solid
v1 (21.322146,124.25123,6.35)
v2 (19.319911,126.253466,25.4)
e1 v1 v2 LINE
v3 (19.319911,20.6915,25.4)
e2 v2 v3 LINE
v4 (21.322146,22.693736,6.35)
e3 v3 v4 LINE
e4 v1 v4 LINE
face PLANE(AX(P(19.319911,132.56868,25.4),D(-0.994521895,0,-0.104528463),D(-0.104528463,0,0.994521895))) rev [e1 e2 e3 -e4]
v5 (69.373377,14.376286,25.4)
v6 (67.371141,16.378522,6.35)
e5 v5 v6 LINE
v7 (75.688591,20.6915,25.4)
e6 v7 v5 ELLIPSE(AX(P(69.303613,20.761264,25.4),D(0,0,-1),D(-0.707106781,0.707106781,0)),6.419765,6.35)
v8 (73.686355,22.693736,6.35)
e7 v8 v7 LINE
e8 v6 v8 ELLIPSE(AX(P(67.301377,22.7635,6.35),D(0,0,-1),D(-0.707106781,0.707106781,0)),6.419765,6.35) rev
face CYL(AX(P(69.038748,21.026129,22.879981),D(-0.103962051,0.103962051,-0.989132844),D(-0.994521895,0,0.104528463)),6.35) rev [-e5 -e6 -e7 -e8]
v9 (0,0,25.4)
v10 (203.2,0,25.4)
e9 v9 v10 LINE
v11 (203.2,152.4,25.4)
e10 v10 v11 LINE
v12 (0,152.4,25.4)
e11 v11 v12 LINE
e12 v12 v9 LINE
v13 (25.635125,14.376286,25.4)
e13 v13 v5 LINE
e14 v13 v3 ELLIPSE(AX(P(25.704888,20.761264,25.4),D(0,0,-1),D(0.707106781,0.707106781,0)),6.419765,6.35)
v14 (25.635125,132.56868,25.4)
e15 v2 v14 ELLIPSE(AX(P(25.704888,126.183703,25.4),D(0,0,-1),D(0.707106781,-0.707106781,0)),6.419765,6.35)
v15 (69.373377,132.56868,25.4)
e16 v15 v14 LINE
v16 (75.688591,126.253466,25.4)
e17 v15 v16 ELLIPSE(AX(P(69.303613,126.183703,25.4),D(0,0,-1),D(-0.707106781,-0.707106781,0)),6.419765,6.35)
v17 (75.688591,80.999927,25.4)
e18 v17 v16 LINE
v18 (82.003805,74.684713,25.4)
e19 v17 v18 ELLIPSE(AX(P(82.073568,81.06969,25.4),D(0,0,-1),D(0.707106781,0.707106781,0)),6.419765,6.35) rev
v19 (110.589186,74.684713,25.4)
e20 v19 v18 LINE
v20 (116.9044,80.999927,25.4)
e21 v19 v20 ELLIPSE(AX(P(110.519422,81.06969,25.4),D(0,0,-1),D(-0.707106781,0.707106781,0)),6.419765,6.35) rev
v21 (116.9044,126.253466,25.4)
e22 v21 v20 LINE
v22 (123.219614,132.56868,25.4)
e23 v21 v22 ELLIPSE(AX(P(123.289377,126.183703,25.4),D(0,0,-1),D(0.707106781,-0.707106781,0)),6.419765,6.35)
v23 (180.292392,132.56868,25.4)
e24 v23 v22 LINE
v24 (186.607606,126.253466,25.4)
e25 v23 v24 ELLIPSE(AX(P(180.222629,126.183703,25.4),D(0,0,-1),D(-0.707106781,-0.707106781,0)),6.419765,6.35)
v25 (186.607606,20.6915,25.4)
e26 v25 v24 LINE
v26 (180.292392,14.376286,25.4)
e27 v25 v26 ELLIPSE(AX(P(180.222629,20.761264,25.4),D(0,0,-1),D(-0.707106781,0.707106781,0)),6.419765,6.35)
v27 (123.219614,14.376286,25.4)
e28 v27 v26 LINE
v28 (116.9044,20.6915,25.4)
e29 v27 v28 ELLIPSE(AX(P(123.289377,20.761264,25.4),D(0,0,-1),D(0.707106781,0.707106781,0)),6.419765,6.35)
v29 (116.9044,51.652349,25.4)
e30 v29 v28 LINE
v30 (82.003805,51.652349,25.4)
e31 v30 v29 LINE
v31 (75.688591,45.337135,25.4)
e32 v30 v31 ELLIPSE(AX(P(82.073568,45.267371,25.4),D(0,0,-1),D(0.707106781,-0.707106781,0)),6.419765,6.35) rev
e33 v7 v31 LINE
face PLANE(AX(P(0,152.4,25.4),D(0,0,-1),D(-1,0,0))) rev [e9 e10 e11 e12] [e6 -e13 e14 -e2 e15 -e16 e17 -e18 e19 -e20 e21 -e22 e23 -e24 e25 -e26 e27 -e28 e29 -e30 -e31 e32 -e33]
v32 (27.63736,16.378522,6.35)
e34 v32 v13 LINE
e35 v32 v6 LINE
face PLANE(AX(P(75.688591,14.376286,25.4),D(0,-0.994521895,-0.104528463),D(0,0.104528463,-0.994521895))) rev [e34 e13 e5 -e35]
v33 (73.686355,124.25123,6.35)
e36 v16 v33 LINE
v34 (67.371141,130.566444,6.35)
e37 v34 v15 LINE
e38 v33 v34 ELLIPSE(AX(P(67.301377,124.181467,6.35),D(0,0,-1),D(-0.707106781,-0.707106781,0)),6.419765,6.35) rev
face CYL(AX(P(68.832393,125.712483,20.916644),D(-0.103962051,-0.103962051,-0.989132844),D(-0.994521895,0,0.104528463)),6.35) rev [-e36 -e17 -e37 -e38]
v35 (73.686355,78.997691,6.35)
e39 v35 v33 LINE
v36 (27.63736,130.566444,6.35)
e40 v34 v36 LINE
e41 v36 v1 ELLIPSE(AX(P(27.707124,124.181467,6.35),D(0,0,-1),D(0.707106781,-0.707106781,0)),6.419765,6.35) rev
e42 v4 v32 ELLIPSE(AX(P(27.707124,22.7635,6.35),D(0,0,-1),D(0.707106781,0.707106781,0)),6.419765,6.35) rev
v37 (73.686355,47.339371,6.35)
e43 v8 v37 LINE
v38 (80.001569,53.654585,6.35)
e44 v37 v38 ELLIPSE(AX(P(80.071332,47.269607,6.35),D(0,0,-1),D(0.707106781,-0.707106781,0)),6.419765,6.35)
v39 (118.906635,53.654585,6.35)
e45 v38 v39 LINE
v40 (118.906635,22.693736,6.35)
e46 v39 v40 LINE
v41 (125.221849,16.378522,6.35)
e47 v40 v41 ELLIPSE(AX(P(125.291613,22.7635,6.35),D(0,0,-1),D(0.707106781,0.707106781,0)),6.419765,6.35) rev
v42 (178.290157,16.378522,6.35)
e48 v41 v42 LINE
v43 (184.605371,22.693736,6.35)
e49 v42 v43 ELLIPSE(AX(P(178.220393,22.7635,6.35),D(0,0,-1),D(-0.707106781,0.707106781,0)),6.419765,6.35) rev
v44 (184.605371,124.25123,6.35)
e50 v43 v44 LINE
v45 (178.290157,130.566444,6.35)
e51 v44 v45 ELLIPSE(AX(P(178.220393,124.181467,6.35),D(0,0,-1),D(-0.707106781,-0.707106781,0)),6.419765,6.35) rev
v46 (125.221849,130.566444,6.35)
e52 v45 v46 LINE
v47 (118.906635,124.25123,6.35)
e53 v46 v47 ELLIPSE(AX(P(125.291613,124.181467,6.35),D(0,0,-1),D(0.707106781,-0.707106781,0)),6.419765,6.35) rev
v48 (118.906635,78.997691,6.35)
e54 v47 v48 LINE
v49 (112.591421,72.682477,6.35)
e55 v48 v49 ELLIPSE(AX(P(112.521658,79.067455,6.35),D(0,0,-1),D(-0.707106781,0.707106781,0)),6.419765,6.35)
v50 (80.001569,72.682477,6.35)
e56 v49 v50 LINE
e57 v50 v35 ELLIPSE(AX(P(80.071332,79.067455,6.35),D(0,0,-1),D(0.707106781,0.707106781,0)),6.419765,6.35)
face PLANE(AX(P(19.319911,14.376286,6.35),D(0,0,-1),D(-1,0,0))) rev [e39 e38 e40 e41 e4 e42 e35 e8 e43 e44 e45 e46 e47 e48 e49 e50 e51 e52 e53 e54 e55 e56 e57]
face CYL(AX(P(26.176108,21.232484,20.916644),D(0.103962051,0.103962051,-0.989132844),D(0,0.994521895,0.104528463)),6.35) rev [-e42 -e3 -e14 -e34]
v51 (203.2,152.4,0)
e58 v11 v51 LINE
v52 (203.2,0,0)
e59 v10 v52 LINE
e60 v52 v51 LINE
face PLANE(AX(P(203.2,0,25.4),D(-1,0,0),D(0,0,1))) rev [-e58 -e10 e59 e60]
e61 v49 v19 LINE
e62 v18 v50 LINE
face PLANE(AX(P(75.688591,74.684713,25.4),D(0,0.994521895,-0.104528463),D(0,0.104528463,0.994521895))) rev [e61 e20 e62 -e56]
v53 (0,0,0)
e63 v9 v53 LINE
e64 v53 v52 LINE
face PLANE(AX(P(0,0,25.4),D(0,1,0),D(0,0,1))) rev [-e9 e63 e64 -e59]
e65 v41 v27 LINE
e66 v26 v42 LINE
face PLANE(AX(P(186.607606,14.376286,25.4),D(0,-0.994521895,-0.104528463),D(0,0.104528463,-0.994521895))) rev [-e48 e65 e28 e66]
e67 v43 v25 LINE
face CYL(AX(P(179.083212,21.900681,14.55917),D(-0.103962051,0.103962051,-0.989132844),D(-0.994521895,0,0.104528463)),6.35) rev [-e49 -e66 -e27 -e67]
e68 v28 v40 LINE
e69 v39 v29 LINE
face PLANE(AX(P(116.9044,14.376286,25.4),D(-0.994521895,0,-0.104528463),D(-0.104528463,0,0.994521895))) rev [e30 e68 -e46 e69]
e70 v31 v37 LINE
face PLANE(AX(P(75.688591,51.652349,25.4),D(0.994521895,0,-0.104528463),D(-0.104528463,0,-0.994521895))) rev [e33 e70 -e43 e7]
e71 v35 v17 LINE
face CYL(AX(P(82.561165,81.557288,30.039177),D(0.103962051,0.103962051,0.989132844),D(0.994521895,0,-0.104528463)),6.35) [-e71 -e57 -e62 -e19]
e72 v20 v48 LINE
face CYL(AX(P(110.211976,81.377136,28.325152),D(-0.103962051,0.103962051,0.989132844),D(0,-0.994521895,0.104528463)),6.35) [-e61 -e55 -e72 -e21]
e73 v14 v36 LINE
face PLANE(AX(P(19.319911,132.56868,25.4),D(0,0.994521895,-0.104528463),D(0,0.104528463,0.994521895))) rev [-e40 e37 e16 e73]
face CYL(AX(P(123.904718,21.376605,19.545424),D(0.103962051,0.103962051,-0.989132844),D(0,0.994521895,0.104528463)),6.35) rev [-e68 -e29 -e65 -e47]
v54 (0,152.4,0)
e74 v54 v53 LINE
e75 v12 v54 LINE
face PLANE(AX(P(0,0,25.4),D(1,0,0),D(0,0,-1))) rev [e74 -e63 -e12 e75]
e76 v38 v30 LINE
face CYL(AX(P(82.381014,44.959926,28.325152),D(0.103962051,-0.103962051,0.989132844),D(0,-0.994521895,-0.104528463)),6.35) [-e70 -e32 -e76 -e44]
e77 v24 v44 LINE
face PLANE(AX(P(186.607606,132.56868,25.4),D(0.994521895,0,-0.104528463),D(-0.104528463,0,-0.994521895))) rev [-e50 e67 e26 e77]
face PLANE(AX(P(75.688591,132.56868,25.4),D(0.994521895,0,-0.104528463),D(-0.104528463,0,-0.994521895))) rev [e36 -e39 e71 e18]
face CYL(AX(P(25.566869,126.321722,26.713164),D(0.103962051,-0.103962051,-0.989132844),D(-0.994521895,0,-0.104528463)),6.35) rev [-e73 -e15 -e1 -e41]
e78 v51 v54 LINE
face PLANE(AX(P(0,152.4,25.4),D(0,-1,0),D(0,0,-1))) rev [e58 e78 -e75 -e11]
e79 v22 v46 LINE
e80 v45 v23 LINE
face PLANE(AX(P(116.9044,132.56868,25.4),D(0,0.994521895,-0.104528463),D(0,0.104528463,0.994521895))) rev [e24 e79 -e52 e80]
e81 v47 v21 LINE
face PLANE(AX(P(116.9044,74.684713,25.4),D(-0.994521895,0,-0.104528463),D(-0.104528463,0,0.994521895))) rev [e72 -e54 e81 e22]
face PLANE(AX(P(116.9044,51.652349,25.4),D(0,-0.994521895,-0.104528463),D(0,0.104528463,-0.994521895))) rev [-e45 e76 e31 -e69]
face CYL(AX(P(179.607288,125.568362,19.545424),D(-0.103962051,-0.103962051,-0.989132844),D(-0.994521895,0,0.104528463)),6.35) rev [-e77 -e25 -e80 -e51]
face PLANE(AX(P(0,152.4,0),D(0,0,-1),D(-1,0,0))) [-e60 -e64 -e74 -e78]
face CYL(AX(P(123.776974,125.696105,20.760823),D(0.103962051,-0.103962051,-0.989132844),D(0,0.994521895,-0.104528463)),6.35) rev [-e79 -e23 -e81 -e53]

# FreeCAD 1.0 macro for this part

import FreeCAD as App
import Part
import Sketcher
from FreeCAD import Vector
Q = App.Units.Quantity


def edges_at(feature, points):
    """Names of the edges that pass closest to the given points."""
    edges = feature.Shape.Edges
    near = lambda p: min(range(len(edges)), key=lambda i: edges[i].distToShape(Part.Vertex(*p))[0])
    return sorted({f"Edge{near(p) + 1}" for p in points})


def faces_at(feature, points):
    """Names of the faces that lie closest to the given points."""
    faces = feature.Shape.Faces
    near = lambda p: min(range(len(faces)), key=lambda i: faces[i].distToShape(Part.Vertex(*p))[0])
    return sorted({f"Face{near(p) + 1}" for p in points})

doc = App.newDocument("Part")
params = doc.addObject("Spreadsheet::Sheet", "Params")
for row, (alias, value) in enumerate([
    ("sketch1_width", "8 in"),
    ("sketch1_height", "6 in"),
    ("pad1_length", "1 in"),
    ("pad2_length", "0.75 in"),
    ("draft_angle", "6 deg"),
    ("fillet_radius", "0.25 in"),
], start=1):
    params.set(f"A{row}", alias)
    params.set(f"B{row}", "=" + value)
    params.setAlias(f"B{row}", alias)

body = doc.addObject("PartDesign::Body", "Body")

sketch1 = doc.addObject("Sketcher::SketchObject", "Sketch")
body.addObject(sketch1)
sketch1.AttachmentSupport = (doc.XY_Plane, [""])
sketch1.MapMode = "FlatFace"
sketch1.addGeometry(Part.LineSegment(Vector(0, 152, 0), Vector(0, 0, 0)), False)
sketch1.addGeometry(Part.LineSegment(Vector(0, 0, 0), Vector(203, 0, 0)), False)
sketch1.addGeometry(Part.LineSegment(Vector(203, 0, 0), Vector(203, 152, 0)), False)
sketch1.addGeometry(Part.LineSegment(Vector(203, 152, 0), Vector(0, 152, 0)), False)
sketch1.addConstraint(Sketcher.Constraint("Coincident", 0, 2, 1, 1))
sketch1.addConstraint(Sketcher.Constraint("Coincident", 1, 2, 2, 1))
sketch1.addConstraint(Sketcher.Constraint("Coincident", 2, 2, 3, 1))
sketch1.addConstraint(Sketcher.Constraint("Coincident", 3, 2, 0, 1))
sketch1.addConstraint(Sketcher.Constraint("Vertical", 0))
sketch1.addConstraint(Sketcher.Constraint("Horizontal", 1))
sketch1.addConstraint(Sketcher.Constraint("Vertical", 2))
sketch1.addConstraint(Sketcher.Constraint("Horizontal", 3))
sketch1.addConstraint(Sketcher.Constraint("Coincident", 0, 2, -1, 1))
sketch1.addConstraint(Sketcher.Constraint("DistanceX", 1, 1, 1, 2, Q("8 in")))
sketch1.addConstraint(Sketcher.Constraint("DistanceY", 0, 2, 0, 1, Q("6 in")))
sketch1.setExpression("Constraints[9]", "Params.sketch1_width")
sketch1.setExpression("Constraints[10]", "Params.sketch1_height")
pad1 = doc.addObject("PartDesign::Pad", "Pad")
body.addObject(pad1)
pad1.Profile = sketch1
pad1.setExpression("Length", "Params.pad1_length")
body2 = doc.addObject("PartDesign::Body", "Body001")

sketch2 = doc.addObject("Sketcher::SketchObject", "Sketch001")
body2.addObject(sketch2)
sketch2.AttachmentSupport = (doc.getObject("XY_Plane001"), [""])
sketch2.MapMode = "FlatFace"
sketch2.AttachmentOffset = App.Placement(Vector(0, 0, 1 * 25.4), App.Rotation())
sketch2.addGeometry(Part.LineSegment(Vector(19, 133, 0), Vector(19, 14, 0)), False)
sketch2.addGeometry(Part.LineSegment(Vector(19, 14, 0), Vector(76, 14, 0)), False)
sketch2.addGeometry(Part.LineSegment(Vector(76, 14, 0), Vector(76, 52, 0)), False)
sketch2.addGeometry(Part.LineSegment(Vector(76, 52, 0), Vector(117, 52, 0)), False)
sketch2.addGeometry(Part.LineSegment(Vector(117, 52, 0), Vector(117, 14, 0)), False)
sketch2.addGeometry(Part.LineSegment(Vector(117, 14, 0), Vector(187, 14, 0)), False)
sketch2.addGeometry(Part.LineSegment(Vector(187, 14, 0), Vector(187, 133, 0)), False)
sketch2.addGeometry(Part.LineSegment(Vector(187, 133, 0), Vector(117, 133, 0)), False)
sketch2.addGeometry(Part.LineSegment(Vector(117, 133, 0), Vector(117, 75, 0)), False)
sketch2.addGeometry(Part.LineSegment(Vector(117, 75, 0), Vector(76, 75, 0)), False)
sketch2.addGeometry(Part.LineSegment(Vector(76, 75, 0), Vector(76, 133, 0)), False)
sketch2.addGeometry(Part.LineSegment(Vector(76, 133, 0), Vector(19, 133, 0)), False)
sketch2.addConstraint(Sketcher.Constraint("Coincident", 0, 2, 1, 1))
sketch2.addConstraint(Sketcher.Constraint("Coincident", 1, 2, 2, 1))
sketch2.addConstraint(Sketcher.Constraint("Coincident", 2, 2, 3, 1))
sketch2.addConstraint(Sketcher.Constraint("Coincident", 3, 2, 4, 1))
sketch2.addConstraint(Sketcher.Constraint("Coincident", 4, 2, 5, 1))
sketch2.addConstraint(Sketcher.Constraint("Coincident", 5, 2, 6, 1))
sketch2.addConstraint(Sketcher.Constraint("Coincident", 6, 2, 7, 1))
sketch2.addConstraint(Sketcher.Constraint("Coincident", 7, 2, 8, 1))
sketch2.addConstraint(Sketcher.Constraint("Coincident", 8, 2, 9, 1))
sketch2.addConstraint(Sketcher.Constraint("Coincident", 9, 2, 10, 1))
sketch2.addConstraint(Sketcher.Constraint("Coincident", 10, 2, 11, 1))
sketch2.addConstraint(Sketcher.Constraint("Coincident", 11, 2, 0, 1))
sketch2.addConstraint(Sketcher.Constraint("Vertical", 0))
sketch2.addConstraint(Sketcher.Constraint("Horizontal", 1))
sketch2.addConstraint(Sketcher.Constraint("Vertical", 2))
sketch2.addConstraint(Sketcher.Constraint("Horizontal", 3))
sketch2.addConstraint(Sketcher.Constraint("Vertical", 4))
sketch2.addConstraint(Sketcher.Constraint("Horizontal", 5))
sketch2.addConstraint(Sketcher.Constraint("Vertical", 6))
sketch2.addConstraint(Sketcher.Constraint("Horizontal", 7))
sketch2.addConstraint(Sketcher.Constraint("Vertical", 8))
sketch2.addConstraint(Sketcher.Constraint("Horizontal", 9))
sketch2.addConstraint(Sketcher.Constraint("Vertical", 10))
sketch2.addConstraint(Sketcher.Constraint("Horizontal", 11))
sketch2.addConstraint(Sketcher.Constraint("Horizontal", 1, 2, 4, 2))
sketch2.addConstraint(Sketcher.Constraint("Horizontal", 7, 2, 10, 2))
sketch2.addConstraint(Sketcher.Constraint("Vertical", 4, 2, 7, 2))
sketch2.addConstraint(Sketcher.Constraint("Vertical", 2, 2, 9, 2))
sketch2.addConstraint(Sketcher.Constraint("DistanceX", 1, 1, 1, 2, 56.36868))
sketch2.addConstraint(Sketcher.Constraint("DistanceX", 3, 1, 3, 2, 41.215809))
sketch2.addConstraint(Sketcher.Constraint("DistanceX", -1, 1, 3, 2, 116.9044))
sketch2.addConstraint(Sketcher.Constraint("DistanceX", 5, 1, 5, 2, 69.703207))
sketch2.addConstraint(Sketcher.Constraint("DistanceY", 0, 2, 0, 1, 118.192394))
sketch2.addConstraint(Sketcher.Constraint("DistanceY", 2, 1, 2, 2, 37.276063))
sketch2.addConstraint(Sketcher.Constraint("DistanceY", 8, 2, 8, 1, 57.883967))
sketch2.addConstraint(Sketcher.Constraint("DistanceY", -1, 1, 2, 2, 51.652349))
pad2 = doc.addObject("PartDesign::Pad", "Pad001")
body2.addObject(pad2)
pad2.Profile = sketch2
pad2.setExpression("Length", "Params.pad2_length")
pad2.Reversed = True
doc.recompute()

datumplane = doc.addObject("PartDesign::Plane", "DatumPlane")
body2.addObject(datumplane)
datumplane.AttachmentSupport = (doc.getObject("XY_Plane001"), [""])
datumplane.MapMode = "FlatFace"
datumplane.AttachmentOffset = App.Placement(Vector(0, 0, 1 * 25.4), App.Rotation())
draft = doc.addObject("PartDesign::Draft", "Draft")
body2.addObject(draft)
draft.Base = (pad2, faces_at(pad2, [
    (19.32, 73.472, 15.875),
    (47.504, 14.376, 15.875),
    (75.689, 33.014, 15.875),
    (96.296, 51.652, 15.875),
    (116.904, 33.014, 15.875),
    (151.756, 14.376, 15.875),
    (186.608, 73.472, 15.875),
    (151.756, 132.569, 15.875),
    (116.904, 103.627, 15.875),
    (96.296, 74.685, 15.875),
    (75.689, 103.627, 15.875),
    (47.504, 132.569, 15.875),
]))
draft.NeutralPlane = (datumplane, [""])
draft.setExpression("Angle", "Params.draft_angle")
draft.Reversed = True
doc.recompute()

boolean = doc.addObject("PartDesign::Boolean", "Boolean")
body.addObject(boolean)
boolean.Type = "Cut"
boolean.addObjects([body2])
doc.recompute()

fillet = doc.addObject("PartDesign::Fillet", "Fillet")
body.addObject(fillet)
fillet.Base = (boolean, edges_at(boolean, [
    (20.321, 131.568, 15.875),
    (20.321, 15.377, 15.875),
    (74.687, 15.377, 15.875),
    (74.687, 52.653, 15.875),
    (117.906, 15.377, 15.875),
    (185.606, 15.377, 15.875),
    (185.606, 131.568, 15.875),
    (117.906, 131.568, 15.875),
    (117.906, 73.684, 15.875),
    (74.687, 73.684, 15.875),
    (74.687, 131.568, 15.875),
]))
fillet.setExpression("Radius", "Params.fillet_radius")

doc.recompute()
